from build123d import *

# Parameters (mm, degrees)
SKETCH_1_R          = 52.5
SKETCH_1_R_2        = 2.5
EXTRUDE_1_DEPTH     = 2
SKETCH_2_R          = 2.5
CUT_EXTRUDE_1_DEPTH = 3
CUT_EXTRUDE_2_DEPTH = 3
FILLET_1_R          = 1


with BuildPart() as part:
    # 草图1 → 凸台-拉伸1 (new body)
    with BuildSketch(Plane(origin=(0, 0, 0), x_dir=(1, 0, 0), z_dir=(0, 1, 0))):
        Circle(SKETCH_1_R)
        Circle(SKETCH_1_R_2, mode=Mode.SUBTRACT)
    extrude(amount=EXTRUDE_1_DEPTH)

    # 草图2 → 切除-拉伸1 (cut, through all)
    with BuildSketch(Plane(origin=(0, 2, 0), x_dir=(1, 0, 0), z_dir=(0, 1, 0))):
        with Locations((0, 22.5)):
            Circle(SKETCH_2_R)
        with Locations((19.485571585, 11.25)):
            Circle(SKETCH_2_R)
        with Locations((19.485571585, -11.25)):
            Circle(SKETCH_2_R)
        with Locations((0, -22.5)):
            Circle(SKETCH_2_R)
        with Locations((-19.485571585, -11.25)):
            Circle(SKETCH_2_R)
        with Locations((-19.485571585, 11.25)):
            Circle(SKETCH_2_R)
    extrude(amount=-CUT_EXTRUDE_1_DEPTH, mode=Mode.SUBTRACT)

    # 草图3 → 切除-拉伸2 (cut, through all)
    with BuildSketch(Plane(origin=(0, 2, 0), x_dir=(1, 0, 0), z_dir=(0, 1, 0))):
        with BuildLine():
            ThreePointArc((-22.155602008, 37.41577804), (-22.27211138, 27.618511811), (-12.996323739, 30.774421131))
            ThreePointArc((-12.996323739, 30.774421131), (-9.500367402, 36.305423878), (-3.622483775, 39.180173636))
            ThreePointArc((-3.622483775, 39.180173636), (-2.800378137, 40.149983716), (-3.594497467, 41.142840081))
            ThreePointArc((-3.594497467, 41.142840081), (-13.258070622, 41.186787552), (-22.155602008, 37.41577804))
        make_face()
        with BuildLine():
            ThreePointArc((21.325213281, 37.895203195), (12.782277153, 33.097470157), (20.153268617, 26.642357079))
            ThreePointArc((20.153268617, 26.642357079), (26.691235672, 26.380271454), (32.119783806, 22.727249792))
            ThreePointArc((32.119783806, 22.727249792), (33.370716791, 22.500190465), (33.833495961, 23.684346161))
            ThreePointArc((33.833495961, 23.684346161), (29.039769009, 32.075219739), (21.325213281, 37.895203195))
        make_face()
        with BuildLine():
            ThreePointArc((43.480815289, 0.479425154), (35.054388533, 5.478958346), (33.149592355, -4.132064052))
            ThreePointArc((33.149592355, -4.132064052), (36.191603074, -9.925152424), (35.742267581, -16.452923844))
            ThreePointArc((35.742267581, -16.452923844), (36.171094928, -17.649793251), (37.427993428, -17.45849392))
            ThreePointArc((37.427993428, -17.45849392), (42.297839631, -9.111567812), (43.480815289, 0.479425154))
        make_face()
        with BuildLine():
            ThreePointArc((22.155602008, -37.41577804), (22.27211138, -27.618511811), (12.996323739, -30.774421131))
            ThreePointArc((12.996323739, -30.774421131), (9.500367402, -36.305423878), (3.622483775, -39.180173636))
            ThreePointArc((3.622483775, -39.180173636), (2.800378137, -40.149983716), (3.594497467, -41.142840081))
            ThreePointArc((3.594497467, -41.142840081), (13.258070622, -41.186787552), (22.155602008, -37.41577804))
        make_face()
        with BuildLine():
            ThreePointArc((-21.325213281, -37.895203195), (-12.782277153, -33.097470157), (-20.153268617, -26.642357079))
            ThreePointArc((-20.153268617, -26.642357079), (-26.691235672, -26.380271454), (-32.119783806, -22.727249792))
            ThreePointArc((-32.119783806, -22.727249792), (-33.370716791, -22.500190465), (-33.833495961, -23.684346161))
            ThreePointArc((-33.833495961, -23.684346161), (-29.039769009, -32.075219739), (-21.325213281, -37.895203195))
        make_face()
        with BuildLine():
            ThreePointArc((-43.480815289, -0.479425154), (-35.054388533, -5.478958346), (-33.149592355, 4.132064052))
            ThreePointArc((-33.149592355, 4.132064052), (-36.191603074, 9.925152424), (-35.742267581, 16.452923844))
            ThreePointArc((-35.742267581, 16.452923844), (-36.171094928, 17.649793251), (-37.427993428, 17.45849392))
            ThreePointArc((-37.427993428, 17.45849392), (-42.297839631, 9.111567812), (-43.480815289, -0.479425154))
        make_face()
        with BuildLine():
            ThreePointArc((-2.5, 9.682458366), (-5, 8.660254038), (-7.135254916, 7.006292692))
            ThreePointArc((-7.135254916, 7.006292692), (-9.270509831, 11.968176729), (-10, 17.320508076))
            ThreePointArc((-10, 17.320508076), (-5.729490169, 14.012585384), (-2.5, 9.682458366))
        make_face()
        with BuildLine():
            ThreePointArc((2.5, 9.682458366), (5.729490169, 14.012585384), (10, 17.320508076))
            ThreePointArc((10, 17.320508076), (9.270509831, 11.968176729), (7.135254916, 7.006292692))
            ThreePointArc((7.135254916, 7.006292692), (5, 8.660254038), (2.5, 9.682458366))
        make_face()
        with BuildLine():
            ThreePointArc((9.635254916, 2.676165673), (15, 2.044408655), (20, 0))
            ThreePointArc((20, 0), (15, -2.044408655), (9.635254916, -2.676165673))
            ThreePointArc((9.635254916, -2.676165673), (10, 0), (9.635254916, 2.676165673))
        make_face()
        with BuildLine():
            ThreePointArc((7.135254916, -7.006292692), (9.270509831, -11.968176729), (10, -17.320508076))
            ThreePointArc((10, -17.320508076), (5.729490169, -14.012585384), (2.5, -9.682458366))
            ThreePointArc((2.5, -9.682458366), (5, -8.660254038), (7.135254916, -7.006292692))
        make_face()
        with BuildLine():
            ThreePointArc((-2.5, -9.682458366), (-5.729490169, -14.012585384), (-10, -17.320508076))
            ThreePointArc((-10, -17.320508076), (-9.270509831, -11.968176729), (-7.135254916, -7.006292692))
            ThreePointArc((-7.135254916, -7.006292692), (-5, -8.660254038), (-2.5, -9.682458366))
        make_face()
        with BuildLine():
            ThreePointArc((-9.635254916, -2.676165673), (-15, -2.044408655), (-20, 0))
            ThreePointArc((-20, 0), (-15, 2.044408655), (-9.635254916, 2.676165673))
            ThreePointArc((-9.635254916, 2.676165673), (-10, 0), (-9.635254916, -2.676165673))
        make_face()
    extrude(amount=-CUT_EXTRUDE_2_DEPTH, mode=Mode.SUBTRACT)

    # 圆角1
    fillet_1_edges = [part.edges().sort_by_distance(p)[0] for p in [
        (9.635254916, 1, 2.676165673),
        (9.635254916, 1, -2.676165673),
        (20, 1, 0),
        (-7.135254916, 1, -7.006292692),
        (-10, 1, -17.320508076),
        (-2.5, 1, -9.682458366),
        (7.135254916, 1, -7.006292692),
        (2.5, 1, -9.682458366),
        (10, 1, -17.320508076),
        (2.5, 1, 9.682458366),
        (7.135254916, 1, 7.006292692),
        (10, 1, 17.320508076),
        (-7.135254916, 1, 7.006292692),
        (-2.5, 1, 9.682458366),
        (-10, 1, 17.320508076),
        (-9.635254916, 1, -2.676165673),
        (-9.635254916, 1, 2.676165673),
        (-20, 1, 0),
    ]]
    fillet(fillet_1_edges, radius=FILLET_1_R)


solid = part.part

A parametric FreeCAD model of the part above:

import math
import FreeCAD as App
import Part
import Sketcher

V = App.Vector


def edges_at(feature, points):
    """Names of the edges that pass closest to the given points."""
    edges = feature.Shape.Edges
    near = lambda p: min(range(len(edges)), key=lambda i: edges[i].distToShape(Part.Vertex(*p))[0])
    return sorted({f"Edge{near(p) + 1}" for p in points})

doc = App.newDocument("Part")
body = doc.addObject("PartDesign::Body", "Body")

# Sketch on XZ plane
sketch1 = body.newObject("Sketcher::SketchObject", "Sketch")
sketch1.AttachmentSupport = (doc.getObject("XZ_Plane"), [""])
sketch1.MapMode = "FlatFace"
sketch1.addGeometry(Part.Circle(V(0, 0, 0), V(0, 0, 1), 52.5), False)
sketch1.addGeometry(Part.Circle(V(0, 0, 0), V(0, 0, 1), 2.5), False)
sketch1.addConstraint(Sketcher.Constraint("Coincident", 0, 3, -1, 1))
sketch1.addConstraint(Sketcher.Constraint("Coincident", 1, 3, -1, 1))
sketch1.addConstraint(Sketcher.Constraint("Diameter", 0, 105.0))
sketch1.addConstraint(Sketcher.Constraint("Diameter", 1, 5.0))
pad1 = body.newObject("PartDesign::Pad", "Pad")
pad1.Profile = sketch1
pad1.Length = 2
pad1.Reversed = True

# Sketch on XZ plane
sketch2 = body.newObject("Sketcher::SketchObject", "Sketch001")
sketch2.AttachmentSupport = (doc.getObject("XZ_Plane"), [""])
sketch2.MapMode = "FlatFace"
sketch2.AttachmentOffset = App.Placement(V(0, 0, -2), App.Rotation())
sketch2.addGeometry(Part.Circle(V(0, -22.5, 0), V(0, 0, 1), 2.5), False)
sketch2.addGeometry(Part.Circle(V(19.485572, -11.25, 0), V(0, 0, 1), 2.5), False)
sketch2.addGeometry(Part.Circle(V(19.485572, 11.25, 0), V(0, 0, 1), 2.5), False)
sketch2.addGeometry(Part.Circle(V(0, 22.5, 0), V(0, 0, 1), 2.5), False)
sketch2.addGeometry(Part.Circle(V(-19.485572, 11.25, 0), V(0, 0, 1), 2.5), False)
sketch2.addGeometry(Part.Circle(V(-19.485572, -11.25, 0), V(0, 0, 1), 2.5), False)
sketch2.addConstraint(Sketcher.Constraint("Equal", 0, 1))
sketch2.addConstraint(Sketcher.Constraint("Equal", 1, 2))
sketch2.addConstraint(Sketcher.Constraint("Equal", 2, 3))
sketch2.addConstraint(Sketcher.Constraint("Equal", 3, 4))
sketch2.addConstraint(Sketcher.Constraint("Equal", 4, 5))
sketch2.addConstraint(Sketcher.Constraint("Symmetric", 0, 3, 3, 3, -1, 1))
sketch2.addConstraint(Sketcher.Constraint("Symmetric", 1, 3, 4, 3, -1, 1))
sketch2.addConstraint(Sketcher.Constraint("Symmetric", 2, 3, 5, 3, -1, 1))
sketch2.addConstraint(Sketcher.Constraint("Symmetric", 2, 3, 4, 3, -2))
sketch2.addConstraint(Sketcher.Constraint("PointOnObject", 0, 3, -2))
sketch2.addConstraint(Sketcher.Constraint("Diameter", 0, 5.0))
sketch2.addConstraint(Sketcher.Constraint("DistanceY", 0, 3, 3, 3, 45.0))
sketch2.addConstraint(Sketcher.Constraint("DistanceY", 1, 3, 2, 3, 22.5))
sketch2.addConstraint(Sketcher.Constraint("DistanceX", -1, 1, 1, 3, 19.485572))
pocket1 = body.newObject("PartDesign::Pocket", "Pocket")
pocket1.Profile = sketch2
pocket1.Type = "ThroughAll"
pocket1.Reversed = True

# Sketch on XZ plane
sketch3 = body.newObject("Sketcher::SketchObject", "Sketch002")
sketch3.AttachmentSupport = (doc.getObject("XZ_Plane"), [""])
sketch3.MapMode = "FlatFace"
sketch3.AttachmentOffset = App.Placement(V(0, 0, -2), App.Rotation())
sketch3.addGeometry(Part.ArcOfCircle(Part.Circle(V(-18.75, -32.475953, 0), V(0, 0, 1), 6), math.radians(16.4745), math.radians(235.416941)), False)
sketch3.addGeometry(Part.ArcOfCircle(Part.Circle(V(-1.488971, -27.371358, 0), V(0, 0, 1), 12), math.radians(-163.5255), math.radians(-100.241218)), False)
sketch3.addGeometry(Part.ArcOfCircle(Part.Circle(V(-3.800276, -40.164242, 0), V(0, 0, 1), 1), math.radians(-78.124894), math.radians(79.758782)), False)
sketch3.addGeometry(Part.ArcOfCircle(Part.Circle(V(-8.533194, -17.656476, 0), V(0, 0, 1), 24), math.radians(-124.583059), math.radians(-78.124894)), False)
sketch3.addGeometry(Part.ArcOfCircle(Part.Circle(V(18.75, -32.475953, 0), V(0, 0, 1), 6), math.radians(76.4745), math.radians(295.416941)), False)
sketch3.addGeometry(Part.ArcOfCircle(Part.Circle(V(22.959806, -14.975166, 0), V(0, 0, 1), 12), math.radians(-103.5255), math.radians(-40.241218)), False)
sketch3.addGeometry(Part.ArcOfCircle(Part.Circle(V(32.883115, -23.373257, 0), V(0, 0, 1), 1), math.radians(-18.124894), math.radians(139.758782)), False)
sketch3.addGeometry(Part.ArcOfCircle(Part.Circle(V(11.02436, -16.218201, 0), V(0, 0, 1), 24), math.radians(-64.583059), math.radians(-18.124894)), False)
sketch3.addGeometry(Part.ArcOfCircle(Part.Circle(V(37.5, 0, 0), V(0, 0, 1), 6), math.radians(136.4745), math.radians(355.416941)), False)
sketch3.addGeometry(Part.ArcOfCircle(Part.Circle(V(24.448777, 12.396192, 0), V(0, 0, 1), 12), math.radians(-43.5255), math.radians(19.758782)), False)
sketch3.addGeometry(Part.ArcOfCircle(Part.Circle(V(36.683392, 16.790985, 0), V(0, 0, 1), 1), math.radians(41.875106), math.radians(199.758782)), False)
sketch3.addGeometry(Part.ArcOfCircle(Part.Circle(V(19.557554, 1.438275, 0), V(0, 0, 1), 24), math.radians(-4.583059), math.radians(41.875106)), False)
sketch3.addGeometry(Part.ArcOfCircle(Part.Circle(V(18.75, 32.475953, 0), V(0, 0, 1), 6), math.radians(-163.5255), math.radians(55.416941)), False)
sketch3.addGeometry(Part.ArcOfCircle(Part.Circle(V(1.488971, 27.371358, 0), V(0, 0, 1), 12), math.radians(16.4745), math.radians(79.758782)), False)
sketch3.addGeometry(Part.ArcOfCircle(Part.Circle(V(3.800276, 40.164242, 0), V(0, 0, 1), 1), math.radians(101.875106), math.radians(259.758782)), False)
sketch3.addGeometry(Part.ArcOfCircle(Part.Circle(V(8.533194, 17.656476, 0), V(0, 0, 1), 24), math.radians(55.416941), math.radians(101.875106)), False)
sketch3.addGeometry(Part.ArcOfCircle(Part.Circle(V(-18.75, 32.475953, 0), V(0, 0, 1), 6), math.radians(-103.5255), math.radians(115.416941)), False)
sketch3.addGeometry(Part.ArcOfCircle(Part.Circle(V(-22.959806, 14.975166, 0), V(0, 0, 1), 12), math.radians(76.4745), math.radians(139.758782)), False)
sketch3.addGeometry(Part.ArcOfCircle(Part.Circle(V(-32.883115, 23.373257, 0), V(0, 0, 1), 1), math.radians(161.875106), math.radians(319.758782)), False)
sketch3.addGeometry(Part.ArcOfCircle(Part.Circle(V(-11.02436, 16.218201, 0), V(0, 0, 1), 24), math.radians(115.416941), math.radians(161.875106)), False)
sketch3.addGeometry(Part.ArcOfCircle(Part.Circle(V(-37.5, 0, 0), V(0, 0, 1), 6), math.radians(-43.5255), math.radians(175.416941)), False)
sketch3.addGeometry(Part.ArcOfCircle(Part.Circle(V(-24.448777, -12.396192, 0), V(0, 0, 1), 12), math.radians(136.4745), math.radians(199.758782)), False)
sketch3.addGeometry(Part.ArcOfCircle(Part.Circle(V(-36.683392, -16.790985, 0), V(0, 0, 1), 1), math.radians(-138.124894), math.radians(19.758782)), False)
sketch3.addGeometry(Part.ArcOfCircle(Part.Circle(V(-19.557554, -1.438275, 0), V(0, 0, 1), 24), math.radians(175.416941), math.radians(221.875106)), False)
sketch3.addGeometry(Part.ArcOfCircle(Part.Circle(V(0, 0, 0), V(0, 0, 1), 10), math.radians(-135.522488), math.radians(-104.477512)), False)
sketch3.addGeometry(Part.ArcOfCircle(Part.Circle(V(-20, 0, 0), V(0, 0, 1), 20), math.radians(-60), math.radians(-28.955024)), False)
sketch3.addGeometry(Part.ArcOfCircle(Part.Circle(V(10, -17.320508, 0), V(0, 0, 1), 20), math.radians(148.955024), math.radians(180)), False)
sketch3.addGeometry(Part.ArcOfCircle(Part.Circle(V(20, 0, 0), V(0, 0, 1), 20), math.radians(-151.044976), math.radians(-120)), False)
sketch3.addGeometry(Part.ArcOfCircle(Part.Circle(V(0, 0, 0), V(0, 0, 1), 10), math.radians(-75.522488), math.radians(-44.477512)), False)
sketch3.addGeometry(Part.ArcOfCircle(Part.Circle(V(-10, -17.320508, 0), V(0, 0, 1), 20), math.radians(0), math.radians(31.044976)), False)
sketch3.addGeometry(Part.ArcOfCircle(Part.Circle(V(10, 17.320508, 0), V(0, 0, 1), 20), math.radians(-91.044976), math.radians(-60)), False)
sketch3.addGeometry(Part.ArcOfCircle(Part.Circle(V(0, 0, 0), V(0, 0, 1), 10), math.radians(-15.522488), math.radians(15.522488)), False)
sketch3.addGeometry(Part.ArcOfCircle(Part.Circle(V(10, -17.320508, 0), V(0, 0, 1), 20), math.radians(60), math.radians(91.044976)), False)
sketch3.addGeometry(Part.ArcOfCircle(Part.Circle(V(-10, 17.320508, 0), V(0, 0, 1), 20), math.radians(-31.044976), math.radians(0)), False)
sketch3.addGeometry(Part.ArcOfCircle(Part.Circle(V(0, 0, 0), V(0, 0, 1), 10), math.radians(44.477512), math.radians(75.522488)), False)
sketch3.addGeometry(Part.ArcOfCircle(Part.Circle(V(20, 0, 0), V(0, 0, 1), 20), math.radians(120), math.radians(151.044976)), False)
sketch3.addGeometry(Part.ArcOfCircle(Part.Circle(V(-20, 0, 0), V(0, 0, 1), 20), math.radians(28.955024), math.radians(60)), False)
sketch3.addGeometry(Part.ArcOfCircle(Part.Circle(V(0, 0, 0), V(0, 0, 1), 10), math.radians(104.477512), math.radians(135.522488)), False)
sketch3.addGeometry(Part.ArcOfCircle(Part.Circle(V(10, 17.320508, 0), V(0, 0, 1), 20), math.radians(-180), math.radians(-148.955024)), False)
sketch3.addGeometry(Part.ArcOfCircle(Part.Circle(V(-10, -17.320508, 0), V(0, 0, 1), 20), math.radians(88.955024), math.radians(120)), False)
sketch3.addGeometry(Part.ArcOfCircle(Part.Circle(V(0, 0, 0), V(0, 0, 1), 10), math.radians(164.477512), math.radians(195.522488)), False)
sketch3.addGeometry(Part.ArcOfCircle(Part.Circle(V(-10, 17.320508, 0), V(0, 0, 1), 20), math.radians(-120), math.radians(-88.955024)), False)
sketch3.addConstraint(Sketcher.Constraint("Tangent", 0, 1, 1, 1))
sketch3.addConstraint(Sketcher.Constraint("Tangent", 1, 2, 2, 2))
sketch3.addConstraint(Sketcher.Constraint("Tangent", 2, 1, 3, 2))
sketch3.addConstraint(Sketcher.Constraint("Tangent", 3, 1, 0, 2))
sketch3.addConstraint(Sketcher.Constraint("Tangent", 4, 1, 5, 1))
sketch3.addConstraint(Sketcher.Constraint("Tangent", 5, 2, 6, 2))
sketch3.addConstraint(Sketcher.Constraint("Tangent", 6, 1, 7, 2))
sketch3.addConstraint(Sketcher.Constraint("Tangent", 7, 1, 4, 2))
sketch3.addConstraint(Sketcher.Constraint("Tangent", 8, 1, 9, 1))
sketch3.addConstraint(Sketcher.Constraint("Tangent", 9, 2, 10, 2))
sketch3.addConstraint(Sketcher.Constraint("Tangent", 10, 1, 11, 2))
sketch3.addConstraint(Sketcher.Constraint("Tangent", 11, 1, 8, 2))
sketch3.addConstraint(Sketcher.Constraint("Tangent", 12, 1, 13, 1))
sketch3.addConstraint(Sketcher.Constraint("Tangent", 13, 2, 14, 2))
sketch3.addConstraint(Sketcher.Constraint("Tangent", 14, 1, 15, 2))
sketch3.addConstraint(Sketcher.Constraint("Tangent", 15, 1, 12, 2))
sketch3.addConstraint(Sketcher.Constraint("Tangent", 16, 1, 17, 1))
sketch3.addConstraint(Sketcher.Constraint("Tangent", 17, 2, 18, 2))
sketch3.addConstraint(Sketcher.Constraint("Tangent", 18, 1, 19, 2))
sketch3.addConstraint(Sketcher.Constraint("Tangent", 19, 1, 16, 2))
sketch3.addConstraint(Sketcher.Constraint("Tangent", 20, 1, 21, 1))
sketch3.addConstraint(Sketcher.Constraint("Tangent", 21, 2, 22, 2))
sketch3.addConstraint(Sketcher.Constraint("Tangent", 22, 1, 23, 2))
sketch3.addConstraint(Sketcher.Constraint("Tangent", 23, 1, 20, 2))
sketch3.addConstraint(Sketcher.Constraint("Coincident", 24, 2, 25, 2))
sketch3.addConstraint(Sketcher.Constraint("Coincident", 25, 1, 26, 2))
sketch3.addConstraint(Sketcher.Constraint("Coincident", 26, 1, 24, 1))
sketch3.addConstraint(Sketcher.Constraint("Coincident", 27, 1, 28, 1))
sketch3.addConstraint(Sketcher.Constraint("Coincident", 28, 2, 29, 2))
sketch3.addConstraint(Sketcher.Constraint("Coincident", 29, 1, 27, 2))
sketch3.addConstraint(Sketcher.Constraint("Coincident", 30, 1, 31, 1))
sketch3.addConstraint(Sketcher.Constraint("Coincident", 31, 2, 32, 2))
sketch3.addConstraint(Sketcher.Constraint("Coincident", 32, 1, 30, 2))
sketch3.addConstraint(Sketcher.Constraint("Coincident", 33, 1, 34, 1))
sketch3.addConstraint(Sketcher.Constraint("Coincident", 34, 2, 35, 2))
sketch3.addConstraint(Sketcher.Constraint("Coincident", 35, 1, 33, 2))
sketch3.addConstraint(Sketcher.Constraint("Coincident", 36, 1, 37, 1))
sketch3.addConstraint(Sketcher.Constraint("Coincident", 37, 2, 38, 2))
sketch3.addConstraint(Sketcher.Constraint("Coincident", 38, 1, 36, 2))
sketch3.addConstraint(Sketcher.Constraint("Coincident", 39, 1, 40, 1))
sketch3.addConstraint(Sketcher.Constraint("Coincident", 40, 2, 41, 2))
sketch3.addConstraint(Sketcher.Constraint("Coincident", 41, 1, 39, 2))
sketch3.addConstraint(Sketcher.Constraint("Coincident", 24, 3, -1, 1))
sketch3.addConstraint(Sketcher.Constraint("Coincident", 28, 3, -1, 1))
sketch3.addConstraint(Sketcher.Constraint("Coincident", 31, 3, -1, 1))
sketch3.addConstraint(Sketcher.Constraint("Coincident", 34, 3, -1, 1))
sketch3.addConstraint(Sketcher.Constraint("Coincident", 37, 3, -1, 1))
sketch3.addConstraint(Sketcher.Constraint("Coincident", 40, 3, -1, 1))
sketch3.addConstraint(Sketcher.Constraint("Coincident", 32, 3, 26, 3))
sketch3.addConstraint(Sketcher.Constraint("Coincident", 35, 3, 27, 3))
sketch3.addConstraint(Sketcher.Constraint("Coincident", 36, 3, 25, 3))
sketch3.addConstraint(Sketcher.Constraint("Coincident", 38, 3, 30, 3))
sketch3.addConstraint(Sketcher.Constraint("Coincident", 39, 3, 29, 3))
sketch3.addConstraint(Sketcher.Constraint("Coincident", 41, 3, 33, 3))
sketch3.addConstraint(Sketcher.Constraint("Coincident", 25, 1, 29, 3))
sketch3.addConstraint(Sketcher.Constraint("Coincident", 29, 1, 26, 3))
sketch3.addConstraint(Sketcher.Constraint("Coincident", 32, 1, 27, 3))
sketch3.addConstraint(Sketcher.Constraint("Coincident", 35, 1, 30, 3))
sketch3.addConstraint(Sketcher.Constraint("Coincident", 38, 1, 33, 3))
sketch3.addConstraint(Sketcher.Constraint("Coincident", 41, 1, 25, 3))
sketch3.addConstraint(Sketcher.Constraint("Equal", 0, 4))
sketch3.addConstraint(Sketcher.Constraint("Equal", 1, 5))
sketch3.addConstraint(Sketcher.Constraint("Equal", 2, 6))
sketch3.addConstraint(Sketcher.Constraint("Equal", 3, 7))
sketch3.addConstraint(Sketcher.Constraint("Equal", 4, 8))
sketch3.addConstraint(Sketcher.Constraint("Equal", 5, 9))
sketch3.addConstraint(Sketcher.Constraint("Equal", 6, 10))
sketch3.addConstraint(Sketcher.Constraint("Equal", 7, 11))
sketch3.addConstraint(Sketcher.Constraint("Equal", 8, 12))
sketch3.addConstraint(Sketcher.Constraint("Equal", 9, 13))
sketch3.addConstraint(Sketcher.Constraint("Equal", 10, 14))
sketch3.addConstraint(Sketcher.Constraint("Equal", 11, 15))
sketch3.addConstraint(Sketcher.Constraint("Equal", 12, 16))
sketch3.addConstraint(Sketcher.Constraint("Equal", 13, 17))
sketch3.addConstraint(Sketcher.Constraint("Equal", 14, 18))
sketch3.addConstraint(Sketcher.Constraint("Equal", 15, 19))
sketch3.addConstraint(Sketcher.Constraint("Equal", 16, 20))
sketch3.addConstraint(Sketcher.Constraint("Equal", 17, 21))
sketch3.addConstraint(Sketcher.Constraint("Equal", 18, 22))
sketch3.addConstraint(Sketcher.Constraint("Equal", 19, 23))
sketch3.addConstraint(Sketcher.Constraint("Equal", 25, 26))
sketch3.addConstraint(Sketcher.Constraint("Equal", 26, 27))
sketch3.addConstraint(Sketcher.Constraint("Equal", 24, 28))
sketch3.addConstraint(Sketcher.Constraint("Equal", 29, 30))
sketch3.addConstraint(Sketcher.Constraint("Equal", 28, 31))
sketch3.addConstraint(Sketcher.Constraint("Equal", 32, 33))
sketch3.addConstraint(Sketcher.Constraint("Equal", 31, 34))
sketch3.addConstraint(Sketcher.Constraint("Equal", 35, 36))
sketch3.addConstraint(Sketcher.Constraint("Equal", 34, 37))
sketch3.addConstraint(Sketcher.Constraint("Equal", 37, 40))
sketch3.addConstraint(Sketcher.Constraint("Symmetric", 0, 3, 12, 3, -1, 1))
sketch3.addConstraint(Sketcher.Constraint("Symmetric", 2, 3, 14, 3, -1, 1))
sketch3.addConstraint(Sketcher.Constraint("Symmetric", 4, 3, 16, 3, -1, 1))
sketch3.addConstraint(Sketcher.Constraint("Symmetric", 6, 3, 18, 3, -1, 1))
sketch3.addConstraint(Sketcher.Constraint("Symmetric", 8, 3, 20, 3, -1, 1))
sketch3.addConstraint(Sketcher.Constraint("Symmetric", 10, 3, 22, 3, -1, 1))
sketch3.addConstraint(Sketcher.Constraint("Symmetric", 25, 3, 27, 3, -1, 1))
sketch3.addConstraint(Sketcher.Constraint("Symmetric", 0, 3, 4, 3, -2))
sketch3.addConstraint(Sketcher.Constraint("Symmetric", 26, 3, 29, 3, -2))
sketch3.addConstraint(Sketcher.Constraint("PointOnObject", 8, 3, -1))
sketch3.addConstraint(Sketcher.Constraint("Horizontal", 30, 3, 33, 3))
sketch3.addConstraint(Sketcher.Constraint("Radius", 0, 6.0))
sketch3.addConstraint(Sketcher.Constraint("Radius", 1, 12.0))
sketch3.addConstraint(Sketcher.Constraint("Radius", 2, 1.0))
sketch3.addConstraint(Sketcher.Constraint("Radius", 3, 24.0))
sketch3.addConstraint(Sketcher.Constraint("Radius", 24, 10.0))
sketch3.addConstraint(Sketcher.Constraint("Radius", 25, 20.0))
sketch3.addConstraint(Sketcher.Constraint("DistanceX", 25, 3, -1, 1, 20.0))
sketch3.addConstraint(Sketcher.Constraint("DistanceX", -1, 1, 8, 3, 37.5))
sketch3.addConstraint(Sketcher.Constraint("DistanceX", 0, 3, -1, 1, 18.75))
sketch3.addConstraint(Sketcher.Constraint("DistanceY", 7, 3, -1, 1, 16.218201))
sketch3.addConstraint(Sketcher.Constraint("DistanceX", 1, 3, -1, 1, 1.488971))
sketch3.addConstraint(Sketcher.Constraint("DistanceY", 1, 3, -1, 1, 27.371358))
sketch3.addConstraint(Sketcher.Constraint("DistanceY", 2, 3, -1, 1, 40.164242))
sketch3.addConstraint(Sketcher.Constraint("DistanceX", -1, 1, 10, 3, 36.683392))
sketch3.addConstraint(Sketcher.Constraint("DistanceX", -1, 1, 4, 1, 20.153269))
sketch3.addConstraint(Sketcher.Constraint("DistanceX", -1, 1, 9, 3, 24.448777))
pocket2 = body.newObject("PartDesign::Pocket", "Pocket001")
pocket2.Profile = sketch3
pocket2.Type = "ThroughAll"
pocket2.Reversed = True
doc.recompute()

fillet = body.newObject("PartDesign::Fillet", "Fillet")
fillet.Base = (pocket2, edges_at(pocket2, [
    (9.635, 1, 2.676),
    (9.635, 1, -2.676),
    (20, 1, 0),
    (-7.135, 1, -7.006),
    (-10, 1, -17.321),
    (-2.5, 1, -9.682),
    (7.135, 1, -7.006),
    (2.5, 1, -9.682),
    (10, 1, -17.321),
    (2.5, 1, 9.682),
    (7.135, 1, 7.006),
    (10, 1, 17.321),
    (-7.135, 1, 7.006),
    (-2.5, 1, 9.682),
    (-10, 1, 17.321),
    (-9.635, 1, -2.676),
    (-9.635, 1, 2.676),
    (-20, 1, 0),
]))
fillet.Radius = 1

doc.recompute()
